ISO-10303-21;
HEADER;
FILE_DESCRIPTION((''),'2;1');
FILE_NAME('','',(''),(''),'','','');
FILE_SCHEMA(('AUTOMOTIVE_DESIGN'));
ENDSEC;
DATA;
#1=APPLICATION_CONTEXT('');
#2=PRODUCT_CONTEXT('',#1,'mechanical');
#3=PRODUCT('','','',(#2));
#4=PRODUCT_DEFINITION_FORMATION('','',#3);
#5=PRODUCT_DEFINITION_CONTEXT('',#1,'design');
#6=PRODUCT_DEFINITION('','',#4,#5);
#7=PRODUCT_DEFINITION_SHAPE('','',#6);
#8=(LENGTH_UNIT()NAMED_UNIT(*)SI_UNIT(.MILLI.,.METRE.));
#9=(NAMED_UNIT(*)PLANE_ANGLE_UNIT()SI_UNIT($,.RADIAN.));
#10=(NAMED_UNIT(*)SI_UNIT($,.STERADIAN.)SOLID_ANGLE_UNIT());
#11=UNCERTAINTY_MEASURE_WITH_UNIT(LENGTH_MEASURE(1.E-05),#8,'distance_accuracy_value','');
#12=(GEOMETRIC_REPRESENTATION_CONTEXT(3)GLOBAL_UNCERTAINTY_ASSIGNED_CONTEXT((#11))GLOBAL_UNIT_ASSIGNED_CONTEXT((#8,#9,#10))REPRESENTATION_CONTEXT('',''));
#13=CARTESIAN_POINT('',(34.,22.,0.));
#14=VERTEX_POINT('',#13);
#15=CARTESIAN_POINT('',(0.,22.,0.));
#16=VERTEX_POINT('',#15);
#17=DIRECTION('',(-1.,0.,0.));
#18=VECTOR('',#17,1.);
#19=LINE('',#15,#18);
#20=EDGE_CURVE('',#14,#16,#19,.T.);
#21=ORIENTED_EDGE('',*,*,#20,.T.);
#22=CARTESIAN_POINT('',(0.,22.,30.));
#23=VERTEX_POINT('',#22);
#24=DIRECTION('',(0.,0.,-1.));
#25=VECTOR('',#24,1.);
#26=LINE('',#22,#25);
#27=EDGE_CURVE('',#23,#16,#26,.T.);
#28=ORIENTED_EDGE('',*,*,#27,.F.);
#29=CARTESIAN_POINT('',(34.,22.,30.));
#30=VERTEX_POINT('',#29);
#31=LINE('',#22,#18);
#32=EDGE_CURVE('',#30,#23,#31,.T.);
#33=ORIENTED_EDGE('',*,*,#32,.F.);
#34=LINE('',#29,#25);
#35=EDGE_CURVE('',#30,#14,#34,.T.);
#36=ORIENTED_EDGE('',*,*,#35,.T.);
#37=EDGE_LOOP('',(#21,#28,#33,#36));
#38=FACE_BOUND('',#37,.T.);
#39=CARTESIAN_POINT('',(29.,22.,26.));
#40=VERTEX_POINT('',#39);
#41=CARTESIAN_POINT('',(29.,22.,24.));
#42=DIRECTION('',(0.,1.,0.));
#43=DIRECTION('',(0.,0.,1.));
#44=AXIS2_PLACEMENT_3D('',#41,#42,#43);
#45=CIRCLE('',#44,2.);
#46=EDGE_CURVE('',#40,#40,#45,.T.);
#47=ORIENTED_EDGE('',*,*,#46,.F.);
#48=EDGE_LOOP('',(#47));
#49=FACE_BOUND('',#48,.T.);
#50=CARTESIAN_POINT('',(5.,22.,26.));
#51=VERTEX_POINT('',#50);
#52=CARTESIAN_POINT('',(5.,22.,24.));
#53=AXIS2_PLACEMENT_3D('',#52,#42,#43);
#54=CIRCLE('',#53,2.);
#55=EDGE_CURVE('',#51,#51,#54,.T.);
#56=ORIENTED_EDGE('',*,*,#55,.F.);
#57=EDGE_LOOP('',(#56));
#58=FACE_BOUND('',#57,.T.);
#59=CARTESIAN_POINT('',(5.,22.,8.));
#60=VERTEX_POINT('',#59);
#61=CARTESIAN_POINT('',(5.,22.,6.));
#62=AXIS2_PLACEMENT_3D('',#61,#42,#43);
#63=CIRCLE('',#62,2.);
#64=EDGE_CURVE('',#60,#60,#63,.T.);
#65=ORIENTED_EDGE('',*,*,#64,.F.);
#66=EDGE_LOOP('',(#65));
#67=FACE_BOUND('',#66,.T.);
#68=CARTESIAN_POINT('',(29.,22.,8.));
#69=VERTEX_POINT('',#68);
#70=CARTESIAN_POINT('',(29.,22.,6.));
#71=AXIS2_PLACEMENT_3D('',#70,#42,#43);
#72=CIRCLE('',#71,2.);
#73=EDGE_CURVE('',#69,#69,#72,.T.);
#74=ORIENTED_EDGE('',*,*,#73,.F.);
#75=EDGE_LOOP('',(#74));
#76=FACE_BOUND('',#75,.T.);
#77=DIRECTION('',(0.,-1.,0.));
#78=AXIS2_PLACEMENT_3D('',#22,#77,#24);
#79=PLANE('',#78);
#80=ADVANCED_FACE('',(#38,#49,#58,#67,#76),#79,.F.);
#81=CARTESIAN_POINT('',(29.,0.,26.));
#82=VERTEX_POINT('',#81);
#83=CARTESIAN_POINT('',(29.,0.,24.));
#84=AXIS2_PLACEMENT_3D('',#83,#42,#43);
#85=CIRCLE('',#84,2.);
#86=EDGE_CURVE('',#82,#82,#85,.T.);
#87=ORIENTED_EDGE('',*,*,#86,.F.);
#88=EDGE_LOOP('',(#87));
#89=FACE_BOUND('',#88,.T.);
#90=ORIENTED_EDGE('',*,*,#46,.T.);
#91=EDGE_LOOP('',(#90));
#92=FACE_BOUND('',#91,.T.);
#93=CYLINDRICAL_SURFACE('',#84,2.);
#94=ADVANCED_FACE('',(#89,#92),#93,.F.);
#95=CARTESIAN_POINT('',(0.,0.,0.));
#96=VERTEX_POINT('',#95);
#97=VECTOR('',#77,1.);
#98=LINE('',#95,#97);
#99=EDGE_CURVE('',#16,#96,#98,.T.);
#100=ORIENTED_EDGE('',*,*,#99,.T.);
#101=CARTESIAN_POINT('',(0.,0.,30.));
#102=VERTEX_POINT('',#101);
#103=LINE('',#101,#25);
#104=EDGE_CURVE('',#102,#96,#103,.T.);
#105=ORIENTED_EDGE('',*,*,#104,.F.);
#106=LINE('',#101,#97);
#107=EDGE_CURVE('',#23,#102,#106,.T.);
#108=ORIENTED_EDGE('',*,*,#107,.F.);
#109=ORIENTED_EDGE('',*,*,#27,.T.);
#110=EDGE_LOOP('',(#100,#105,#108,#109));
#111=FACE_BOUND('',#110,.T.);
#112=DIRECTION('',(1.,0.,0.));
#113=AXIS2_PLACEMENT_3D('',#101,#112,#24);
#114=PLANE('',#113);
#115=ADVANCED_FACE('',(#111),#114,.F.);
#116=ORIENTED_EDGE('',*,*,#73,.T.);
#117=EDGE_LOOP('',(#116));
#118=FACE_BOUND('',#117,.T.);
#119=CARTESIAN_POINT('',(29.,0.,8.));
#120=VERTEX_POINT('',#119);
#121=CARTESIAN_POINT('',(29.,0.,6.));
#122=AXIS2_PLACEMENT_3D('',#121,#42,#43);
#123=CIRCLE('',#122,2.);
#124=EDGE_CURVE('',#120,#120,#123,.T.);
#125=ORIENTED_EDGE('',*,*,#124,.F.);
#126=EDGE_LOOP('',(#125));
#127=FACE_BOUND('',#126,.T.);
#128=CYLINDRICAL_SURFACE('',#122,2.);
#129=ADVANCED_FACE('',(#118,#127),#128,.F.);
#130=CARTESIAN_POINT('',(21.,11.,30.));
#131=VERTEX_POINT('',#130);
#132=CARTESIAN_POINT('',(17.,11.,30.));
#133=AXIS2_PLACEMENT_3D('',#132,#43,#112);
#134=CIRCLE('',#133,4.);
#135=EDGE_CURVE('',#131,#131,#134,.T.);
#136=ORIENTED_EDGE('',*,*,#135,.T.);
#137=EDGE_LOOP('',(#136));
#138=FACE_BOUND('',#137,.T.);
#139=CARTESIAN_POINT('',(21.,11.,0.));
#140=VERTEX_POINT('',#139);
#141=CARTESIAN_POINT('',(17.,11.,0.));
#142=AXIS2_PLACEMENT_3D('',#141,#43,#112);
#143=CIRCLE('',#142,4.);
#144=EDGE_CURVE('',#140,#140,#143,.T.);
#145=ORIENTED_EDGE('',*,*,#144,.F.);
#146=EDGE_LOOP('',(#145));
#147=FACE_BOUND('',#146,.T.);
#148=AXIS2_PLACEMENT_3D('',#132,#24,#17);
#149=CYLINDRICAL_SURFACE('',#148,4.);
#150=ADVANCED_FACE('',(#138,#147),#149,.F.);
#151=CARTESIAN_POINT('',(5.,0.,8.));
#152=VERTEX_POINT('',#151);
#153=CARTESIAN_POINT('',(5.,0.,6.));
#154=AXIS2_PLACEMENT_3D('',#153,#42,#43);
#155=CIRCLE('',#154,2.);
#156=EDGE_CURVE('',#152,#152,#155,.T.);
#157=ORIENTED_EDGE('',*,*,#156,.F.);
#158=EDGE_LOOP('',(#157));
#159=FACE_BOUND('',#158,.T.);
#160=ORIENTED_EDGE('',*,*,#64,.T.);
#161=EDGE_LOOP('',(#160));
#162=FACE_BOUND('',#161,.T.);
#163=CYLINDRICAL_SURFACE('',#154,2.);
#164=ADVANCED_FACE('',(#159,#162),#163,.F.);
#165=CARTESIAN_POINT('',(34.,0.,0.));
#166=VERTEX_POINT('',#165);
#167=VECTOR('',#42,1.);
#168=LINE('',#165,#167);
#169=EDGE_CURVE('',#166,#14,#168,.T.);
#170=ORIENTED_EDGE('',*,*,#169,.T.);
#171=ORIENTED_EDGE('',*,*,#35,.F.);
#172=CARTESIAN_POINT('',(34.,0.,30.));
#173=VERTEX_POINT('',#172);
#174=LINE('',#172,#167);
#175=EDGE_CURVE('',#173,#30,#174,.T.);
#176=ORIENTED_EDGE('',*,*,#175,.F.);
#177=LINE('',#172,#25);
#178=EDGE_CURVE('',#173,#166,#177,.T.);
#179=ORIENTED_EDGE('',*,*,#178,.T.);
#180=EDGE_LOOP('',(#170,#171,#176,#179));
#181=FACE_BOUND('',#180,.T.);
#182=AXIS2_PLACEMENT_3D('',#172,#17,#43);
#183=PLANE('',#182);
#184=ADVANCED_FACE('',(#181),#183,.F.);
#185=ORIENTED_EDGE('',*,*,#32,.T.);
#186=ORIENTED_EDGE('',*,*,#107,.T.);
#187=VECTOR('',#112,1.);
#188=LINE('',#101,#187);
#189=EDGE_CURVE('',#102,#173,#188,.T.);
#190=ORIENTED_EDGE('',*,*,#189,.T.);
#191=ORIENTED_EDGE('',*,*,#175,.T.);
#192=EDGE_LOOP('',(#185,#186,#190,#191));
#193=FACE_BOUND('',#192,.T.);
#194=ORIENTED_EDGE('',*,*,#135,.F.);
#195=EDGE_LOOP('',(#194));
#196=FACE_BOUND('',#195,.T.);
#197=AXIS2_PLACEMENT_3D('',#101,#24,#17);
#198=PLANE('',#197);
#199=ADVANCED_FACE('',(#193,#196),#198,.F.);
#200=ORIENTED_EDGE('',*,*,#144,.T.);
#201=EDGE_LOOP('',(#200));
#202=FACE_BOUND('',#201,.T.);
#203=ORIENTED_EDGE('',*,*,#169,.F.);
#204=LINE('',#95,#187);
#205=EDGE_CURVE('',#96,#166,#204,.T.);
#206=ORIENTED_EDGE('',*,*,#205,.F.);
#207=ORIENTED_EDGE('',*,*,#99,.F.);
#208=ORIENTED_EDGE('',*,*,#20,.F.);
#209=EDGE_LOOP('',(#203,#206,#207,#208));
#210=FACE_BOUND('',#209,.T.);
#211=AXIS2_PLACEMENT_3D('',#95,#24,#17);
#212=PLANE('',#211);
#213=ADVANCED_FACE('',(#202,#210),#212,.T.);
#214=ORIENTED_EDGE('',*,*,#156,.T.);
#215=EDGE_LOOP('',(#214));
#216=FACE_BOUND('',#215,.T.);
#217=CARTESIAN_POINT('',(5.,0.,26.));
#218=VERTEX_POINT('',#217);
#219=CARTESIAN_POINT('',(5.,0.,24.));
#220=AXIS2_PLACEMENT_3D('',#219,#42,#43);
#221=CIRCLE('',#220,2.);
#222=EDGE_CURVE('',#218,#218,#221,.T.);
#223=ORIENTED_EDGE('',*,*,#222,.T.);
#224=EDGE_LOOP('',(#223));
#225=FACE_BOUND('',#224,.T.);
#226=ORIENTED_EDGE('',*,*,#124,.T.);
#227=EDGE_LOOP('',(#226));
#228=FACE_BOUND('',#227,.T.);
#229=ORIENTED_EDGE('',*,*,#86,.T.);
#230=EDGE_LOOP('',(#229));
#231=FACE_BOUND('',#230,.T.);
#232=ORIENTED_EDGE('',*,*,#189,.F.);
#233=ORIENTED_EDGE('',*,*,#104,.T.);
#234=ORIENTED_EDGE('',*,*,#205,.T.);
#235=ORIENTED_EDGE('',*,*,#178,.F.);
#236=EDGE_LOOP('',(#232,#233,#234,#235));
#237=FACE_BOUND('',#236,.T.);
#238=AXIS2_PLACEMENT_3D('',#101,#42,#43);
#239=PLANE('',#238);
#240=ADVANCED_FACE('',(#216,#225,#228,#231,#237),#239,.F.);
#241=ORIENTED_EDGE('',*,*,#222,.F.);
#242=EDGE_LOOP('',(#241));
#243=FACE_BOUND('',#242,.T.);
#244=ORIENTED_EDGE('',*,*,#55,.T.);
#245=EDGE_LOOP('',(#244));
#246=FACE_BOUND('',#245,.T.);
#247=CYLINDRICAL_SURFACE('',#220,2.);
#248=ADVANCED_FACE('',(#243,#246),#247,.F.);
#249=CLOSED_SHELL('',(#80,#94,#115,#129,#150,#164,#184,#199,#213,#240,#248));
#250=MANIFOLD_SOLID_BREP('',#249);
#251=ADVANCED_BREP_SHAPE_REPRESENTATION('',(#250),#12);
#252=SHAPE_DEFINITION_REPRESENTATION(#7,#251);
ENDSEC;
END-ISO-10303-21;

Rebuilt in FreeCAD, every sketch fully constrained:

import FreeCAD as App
import Part
import Sketcher

doc = App.newDocument("Part")
body = doc.addObject("PartDesign::Body", "Body")

# Sketch on XY plane
sketch1 = body.newObject("Sketcher::SketchObject", "Sketch")
sketch1.AttachmentSupport = (doc.getObject("XY_Plane"), [""])
sketch1.MapMode = "FlatFace"
sketch1.addGeometry([
    Part.LineSegment(App.Vector(0, 22, 0), App.Vector(0, 0, 0)),  # 0
    Part.LineSegment(App.Vector(0, 0, 0), App.Vector(34, 0, 0)),  # 1
    Part.LineSegment(App.Vector(34, 0, 0), App.Vector(34, 22, 0)),  # 2
    Part.LineSegment(App.Vector(34, 22, 0), App.Vector(0, 22, 0)),  # 3
    Part.Circle(App.Vector(17, 11, 0), App.Vector(0, 0, 1), 4),  # 4
], False)
sketch1.addConstraint([
    Sketcher.Constraint("Coincident", 0, 2, 1, 1),
    Sketcher.Constraint("Coincident", 1, 2, 2, 1),
    Sketcher.Constraint("Coincident", 2, 2, 3, 1),
    Sketcher.Constraint("Coincident", 3, 2, 0, 1),
    Sketcher.Constraint("Vertical", 0),
    Sketcher.Constraint("Horizontal", 1),
    Sketcher.Constraint("Vertical", 2),
    Sketcher.Constraint("Horizontal", 3),
    Sketcher.Constraint("Coincident", 0, 2, -1, 1),
    Sketcher.Constraint("Diameter", 4, 8.0),
    Sketcher.Constraint("DistanceX", 1, 1, 1, 2, 34.0),
    Sketcher.Constraint("DistanceY", 0, 2, 0, 1, 22.0),
    Sketcher.Constraint("DistanceX", -1, 1, 4, 3, 17.0),
    Sketcher.Constraint("DistanceY", -1, 1, 4, 3, 11.0),
])
pad1 = body.newObject("PartDesign::Pad", "Pad")
pad1.Profile = sketch1
pad1.Length = 30

# Sketch on XZ plane
sketch2 = body.newObject("Sketcher::SketchObject", "Sketch001")
sketch2.AttachmentSupport = (doc.getObject("XZ_Plane"), [""])
sketch2.MapMode = "FlatFace"
sketch2.AttachmentOffset = App.Placement(App.Vector(0, 0, -22), App.Rotation())
sketch2.addGeometry([
    Part.Circle(App.Vector(5, 24, 0), App.Vector(0, 0, 1), 2),
    Part.Circle(App.Vector(5, 6, 0), App.Vector(0, 0, 1), 2),
    Part.Circle(App.Vector(29, 6, 0), App.Vector(0, 0, 1), 2),
    Part.Circle(App.Vector(29, 24, 0), App.Vector(0, 0, 1), 2),
], False)
sketch2.addConstraint([
    Sketcher.Constraint("Equal", 0, 1),
    Sketcher.Constraint("Equal", 1, 2),
    Sketcher.Constraint("Equal", 2, 3),
    Sketcher.Constraint("Horizontal", 1, 3, 2, 3),
    Sketcher.Constraint("Horizontal", 0, 3, 3, 3),
    Sketcher.Constraint("Vertical", 0, 3, 1, 3),
    Sketcher.Constraint("Vertical", 2, 3, 3, 3),
    Sketcher.Constraint("Diameter", 0, 4.0),
    Sketcher.Constraint("DistanceX", -1, 1, 0, 3, 5.0),
    Sketcher.Constraint("DistanceY", -1, 1, 0, 3, 24.0),
    Sketcher.Constraint("DistanceY", -1, 1, 1, 3, 6.0),
    Sketcher.Constraint("DistanceX", -1, 1, 2, 3, 29.0),
])
pocket1 = body.newObject("PartDesign::Pocket", "Pocket")
pocket1.Profile = sketch2
pocket1.Type = "ThroughAll"
pocket1.Reversed = True

doc.recompute()
